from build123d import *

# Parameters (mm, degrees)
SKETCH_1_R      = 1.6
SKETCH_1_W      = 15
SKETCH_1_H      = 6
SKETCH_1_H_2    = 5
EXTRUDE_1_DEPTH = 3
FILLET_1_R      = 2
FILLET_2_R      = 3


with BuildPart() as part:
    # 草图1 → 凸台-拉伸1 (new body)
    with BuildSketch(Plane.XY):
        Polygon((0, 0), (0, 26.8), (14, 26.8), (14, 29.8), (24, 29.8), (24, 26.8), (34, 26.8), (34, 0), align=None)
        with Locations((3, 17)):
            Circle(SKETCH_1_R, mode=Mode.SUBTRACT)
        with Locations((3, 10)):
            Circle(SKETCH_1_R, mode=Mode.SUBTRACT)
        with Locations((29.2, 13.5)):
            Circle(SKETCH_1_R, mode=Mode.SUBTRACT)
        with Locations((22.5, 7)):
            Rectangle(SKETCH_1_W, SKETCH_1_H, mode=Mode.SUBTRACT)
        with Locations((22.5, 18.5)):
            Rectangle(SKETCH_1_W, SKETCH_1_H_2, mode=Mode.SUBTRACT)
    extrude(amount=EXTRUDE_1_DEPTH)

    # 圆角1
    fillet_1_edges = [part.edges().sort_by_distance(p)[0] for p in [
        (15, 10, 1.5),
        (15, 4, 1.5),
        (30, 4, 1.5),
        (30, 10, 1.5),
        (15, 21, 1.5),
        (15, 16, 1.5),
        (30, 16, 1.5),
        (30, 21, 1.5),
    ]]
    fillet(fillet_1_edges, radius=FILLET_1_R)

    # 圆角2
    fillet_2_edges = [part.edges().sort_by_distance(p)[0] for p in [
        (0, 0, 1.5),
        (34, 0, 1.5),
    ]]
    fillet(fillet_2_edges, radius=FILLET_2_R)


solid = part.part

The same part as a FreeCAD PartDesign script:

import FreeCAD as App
import Part
import Sketcher

V = App.Vector


def edges_at(feature, points):
    """Names of the edges that pass closest to the given points."""
    edges = feature.Shape.Edges
    near = lambda p: min(range(len(edges)), key=lambda i: edges[i].distToShape(Part.Vertex(*p))[0])
    return sorted({f"Edge{near(p) + 1}" for p in points})

doc = App.newDocument("Part")
params = doc.addObject("Spreadsheet::Sheet", "Params")
for row, (alias, value) in enumerate([
    ("sketch1_diameter", "3.2 mm"),
    ("sketch1_width", "34 mm"),
    ("sketch1_width2", "10 mm"),
    ("sketch1_width3", "15 mm"),
    ("sketch1_height", "3 mm"),
    ("pad1_length", "3 mm"),
    ("fillet_radius", "2 mm"),
    ("fillet2_radius", "3 mm"),
], start=1):
    params.set(f"A{row}", alias)
    params.set(f"B{row}", "=" + value)
    params.setAlias(f"B{row}", alias)

body = doc.addObject("PartDesign::Body", "Body")

sketch1 = body.newObject("Sketcher::SketchObject", "Sketch")
sketch1.AttachmentSupport = (doc.getObject("XY_Plane"), [""])
sketch1.MapMode = "FlatFace"
sketch1.addGeometry(Part.LineSegment(V(0, 26.8, 0), V(0, 0, 0)), False)
sketch1.addGeometry(Part.LineSegment(V(0, 0, 0), V(34, 0, 0)), False)
sketch1.addGeometry(Part.LineSegment(V(34, 0, 0), V(34, 26.8, 0)), False)
sketch1.addGeometry(Part.LineSegment(V(34, 26.8, 0), V(24, 26.8, 0)), False)
sketch1.addGeometry(Part.LineSegment(V(24, 26.8, 0), V(24, 29.8, 0)), False)
sketch1.addGeometry(Part.LineSegment(V(24, 29.8, 0), V(14, 29.8, 0)), False)
sketch1.addGeometry(Part.LineSegment(V(14, 29.8, 0), V(14, 26.8, 0)), False)
sketch1.addGeometry(Part.LineSegment(V(14, 26.8, 0), V(0, 26.8, 0)), False)
sketch1.addGeometry(Part.LineSegment(V(15, 4, 0), V(15, 10, 0)), False)
sketch1.addGeometry(Part.LineSegment(V(15, 10, 0), V(30, 10, 0)), False)
sketch1.addGeometry(Part.LineSegment(V(30, 10, 0), V(30, 4, 0)), False)
sketch1.addGeometry(Part.LineSegment(V(30, 4, 0), V(15, 4, 0)), False)
sketch1.addGeometry(Part.Circle(V(3, 10, 0), V(0, 0, 1), 1.6), False)
sketch1.addGeometry(Part.Circle(V(29.2, 13.5, 0), V(0, 0, 1), 1.6), False)
sketch1.addGeometry(Part.LineSegment(V(15, 16, 0), V(15, 21, 0)), False)
sketch1.addGeometry(Part.LineSegment(V(15, 21, 0), V(30, 21, 0)), False)
sketch1.addGeometry(Part.LineSegment(V(30, 21, 0), V(30, 16, 0)), False)
sketch1.addGeometry(Part.LineSegment(V(30, 16, 0), V(15, 16, 0)), False)
sketch1.addGeometry(Part.Circle(V(3, 17, 0), V(0, 0, 1), 1.6), False)
sketch1.addConstraint(Sketcher.Constraint("Coincident", 0, 2, 1, 1))
sketch1.addConstraint(Sketcher.Constraint("Coincident", 1, 2, 2, 1))
sketch1.addConstraint(Sketcher.Constraint("Coincident", 2, 2, 3, 1))
sketch1.addConstraint(Sketcher.Constraint("Coincident", 3, 2, 4, 1))
sketch1.addConstraint(Sketcher.Constraint("Coincident", 4, 2, 5, 1))
sketch1.addConstraint(Sketcher.Constraint("Coincident", 5, 2, 6, 1))
sketch1.addConstraint(Sketcher.Constraint("Coincident", 6, 2, 7, 1))
sketch1.addConstraint(Sketcher.Constraint("Coincident", 7, 2, 0, 1))
sketch1.addConstraint(Sketcher.Constraint("Coincident", 8, 2, 9, 1))
sketch1.addConstraint(Sketcher.Constraint("Coincident", 9, 2, 10, 1))
sketch1.addConstraint(Sketcher.Constraint("Coincident", 10, 2, 11, 1))
sketch1.addConstraint(Sketcher.Constraint("Coincident", 11, 2, 8, 1))
sketch1.addConstraint(Sketcher.Constraint("Coincident", 14, 2, 15, 1))
sketch1.addConstraint(Sketcher.Constraint("Coincident", 15, 2, 16, 1))
sketch1.addConstraint(Sketcher.Constraint("Coincident", 16, 2, 17, 1))
sketch1.addConstraint(Sketcher.Constraint("Coincident", 17, 2, 14, 1))
sketch1.addConstraint(Sketcher.Constraint("Vertical", 0))
sketch1.addConstraint(Sketcher.Constraint("Horizontal", 1))
sketch1.addConstraint(Sketcher.Constraint("Vertical", 2))
sketch1.addConstraint(Sketcher.Constraint("Horizontal", 3))
sketch1.addConstraint(Sketcher.Constraint("Vertical", 4))
sketch1.addConstraint(Sketcher.Constraint("Horizontal", 5))
sketch1.addConstraint(Sketcher.Constraint("Vertical", 6))
sketch1.addConstraint(Sketcher.Constraint("Horizontal", 7))
sketch1.addConstraint(Sketcher.Constraint("Vertical", 8))
sketch1.addConstraint(Sketcher.Constraint("Horizontal", 9))
sketch1.addConstraint(Sketcher.Constraint("Vertical", 10))
sketch1.addConstraint(Sketcher.Constraint("Horizontal", 11))
sketch1.addConstraint(Sketcher.Constraint("Vertical", 14))
sketch1.addConstraint(Sketcher.Constraint("Horizontal", 15))
sketch1.addConstraint(Sketcher.Constraint("Vertical", 16))
sketch1.addConstraint(Sketcher.Constraint("Horizontal", 17))
sketch1.addConstraint(Sketcher.Constraint("Coincident", 0, 2, -1, 1))
sketch1.addConstraint(Sketcher.Constraint("Equal", 12, 13))
sketch1.addConstraint(Sketcher.Constraint("Equal", 13, 18))
sketch1.addConstraint(Sketcher.Constraint("Horizontal", 3, 2, 6, 2))
sketch1.addConstraint(Sketcher.Constraint("Horizontal", 12, 3, 8, 2))
sketch1.addConstraint(Sketcher.Constraint("Vertical", 12, 3, 18, 3))
sketch1.addConstraint(Sketcher.Constraint("Vertical", 11, 2, 14, 2))
sketch1.addConstraint(Sketcher.Constraint("Vertical", 10, 2, 15, 2))
sketch1.addConstraint(Sketcher.Constraint("Equal", 3, 5))
sketch1.addConstraint(Sketcher.Constraint("Diameter", 12, 3.2))
sketch1.addConstraint(Sketcher.Constraint("DistanceX", 1, 1, 1, 2, 34.0))
sketch1.addConstraint(Sketcher.Constraint("DistanceX", 3, 2, 3, 1, 10.0))
sketch1.addConstraint(Sketcher.Constraint("DistanceX", 9, 1, 9, 2, 15.0))
sketch1.addConstraint(Sketcher.Constraint("DistanceY", 4, 1, 4, 2, 3.0))
sketch1.addConstraint(Sketcher.Constraint("DistanceY", 8, 1, 8, 2, 6.0))
sketch1.addConstraint(Sketcher.Constraint("DistanceY", 14, 1, 14, 2, 5.0))
sketch1.addConstraint(Sketcher.Constraint("DistanceY", 0, 2, 0, 1, 26.8))
sketch1.addConstraint(Sketcher.Constraint("DistanceX", -1, 1, 12, 3, 3.0))
sketch1.addConstraint(Sketcher.Constraint("DistanceY", -1, 1, 12, 3, 10.0))
sketch1.addConstraint(Sketcher.Constraint("DistanceY", -1, 1, 18, 3, 17.0))
sketch1.addConstraint(Sketcher.Constraint("DistanceX", -1, 1, 8, 2, 15.0))
sketch1.addConstraint(Sketcher.Constraint("DistanceY", -1, 1, 14, 2, 21.0))
sketch1.addConstraint(Sketcher.Constraint("DistanceX", -1, 1, 13, 3, 29.2))
sketch1.addConstraint(Sketcher.Constraint("DistanceY", -1, 1, 13, 3, 13.5))
sketch1.setExpression("Constraints[41]", "Params.sketch1_diameter")
sketch1.setExpression("Constraints[42]", "Params.sketch1_width")
sketch1.setExpression("Constraints[43]", "Params.sketch1_width2")
sketch1.setExpression("Constraints[44]", "Params.sketch1_width3")
sketch1.setExpression("Constraints[45]", "Params.sketch1_height")
pad1 = body.newObject("PartDesign::Pad", "Pad")
pad1.Profile = sketch1
pad1.setExpression("Length", "Params.pad1_length")
doc.recompute()

fillet = body.newObject("PartDesign::Fillet", "Fillet")
fillet.Base = (pad1, edges_at(pad1, [
    (15, 10, 1.5),
    (15, 4, 1.5),
    (30, 4, 1.5),
    (30, 10, 1.5),
    (15, 21, 1.5),
    (15, 16, 1.5),
    (30, 16, 1.5),
    (30, 21, 1.5),
]))
fillet.setExpression("Radius", "Params.fillet_radius")
doc.recompute()

fillet2 = body.newObject("PartDesign::Fillet", "Fillet001")
fillet2.Base = (fillet, edges_at(fillet, [(0, 0, 1.5), (34, 0, 1.5)]))
fillet2.setExpression("Radius", "Params.fillet2_radius")

doc.recompute()
